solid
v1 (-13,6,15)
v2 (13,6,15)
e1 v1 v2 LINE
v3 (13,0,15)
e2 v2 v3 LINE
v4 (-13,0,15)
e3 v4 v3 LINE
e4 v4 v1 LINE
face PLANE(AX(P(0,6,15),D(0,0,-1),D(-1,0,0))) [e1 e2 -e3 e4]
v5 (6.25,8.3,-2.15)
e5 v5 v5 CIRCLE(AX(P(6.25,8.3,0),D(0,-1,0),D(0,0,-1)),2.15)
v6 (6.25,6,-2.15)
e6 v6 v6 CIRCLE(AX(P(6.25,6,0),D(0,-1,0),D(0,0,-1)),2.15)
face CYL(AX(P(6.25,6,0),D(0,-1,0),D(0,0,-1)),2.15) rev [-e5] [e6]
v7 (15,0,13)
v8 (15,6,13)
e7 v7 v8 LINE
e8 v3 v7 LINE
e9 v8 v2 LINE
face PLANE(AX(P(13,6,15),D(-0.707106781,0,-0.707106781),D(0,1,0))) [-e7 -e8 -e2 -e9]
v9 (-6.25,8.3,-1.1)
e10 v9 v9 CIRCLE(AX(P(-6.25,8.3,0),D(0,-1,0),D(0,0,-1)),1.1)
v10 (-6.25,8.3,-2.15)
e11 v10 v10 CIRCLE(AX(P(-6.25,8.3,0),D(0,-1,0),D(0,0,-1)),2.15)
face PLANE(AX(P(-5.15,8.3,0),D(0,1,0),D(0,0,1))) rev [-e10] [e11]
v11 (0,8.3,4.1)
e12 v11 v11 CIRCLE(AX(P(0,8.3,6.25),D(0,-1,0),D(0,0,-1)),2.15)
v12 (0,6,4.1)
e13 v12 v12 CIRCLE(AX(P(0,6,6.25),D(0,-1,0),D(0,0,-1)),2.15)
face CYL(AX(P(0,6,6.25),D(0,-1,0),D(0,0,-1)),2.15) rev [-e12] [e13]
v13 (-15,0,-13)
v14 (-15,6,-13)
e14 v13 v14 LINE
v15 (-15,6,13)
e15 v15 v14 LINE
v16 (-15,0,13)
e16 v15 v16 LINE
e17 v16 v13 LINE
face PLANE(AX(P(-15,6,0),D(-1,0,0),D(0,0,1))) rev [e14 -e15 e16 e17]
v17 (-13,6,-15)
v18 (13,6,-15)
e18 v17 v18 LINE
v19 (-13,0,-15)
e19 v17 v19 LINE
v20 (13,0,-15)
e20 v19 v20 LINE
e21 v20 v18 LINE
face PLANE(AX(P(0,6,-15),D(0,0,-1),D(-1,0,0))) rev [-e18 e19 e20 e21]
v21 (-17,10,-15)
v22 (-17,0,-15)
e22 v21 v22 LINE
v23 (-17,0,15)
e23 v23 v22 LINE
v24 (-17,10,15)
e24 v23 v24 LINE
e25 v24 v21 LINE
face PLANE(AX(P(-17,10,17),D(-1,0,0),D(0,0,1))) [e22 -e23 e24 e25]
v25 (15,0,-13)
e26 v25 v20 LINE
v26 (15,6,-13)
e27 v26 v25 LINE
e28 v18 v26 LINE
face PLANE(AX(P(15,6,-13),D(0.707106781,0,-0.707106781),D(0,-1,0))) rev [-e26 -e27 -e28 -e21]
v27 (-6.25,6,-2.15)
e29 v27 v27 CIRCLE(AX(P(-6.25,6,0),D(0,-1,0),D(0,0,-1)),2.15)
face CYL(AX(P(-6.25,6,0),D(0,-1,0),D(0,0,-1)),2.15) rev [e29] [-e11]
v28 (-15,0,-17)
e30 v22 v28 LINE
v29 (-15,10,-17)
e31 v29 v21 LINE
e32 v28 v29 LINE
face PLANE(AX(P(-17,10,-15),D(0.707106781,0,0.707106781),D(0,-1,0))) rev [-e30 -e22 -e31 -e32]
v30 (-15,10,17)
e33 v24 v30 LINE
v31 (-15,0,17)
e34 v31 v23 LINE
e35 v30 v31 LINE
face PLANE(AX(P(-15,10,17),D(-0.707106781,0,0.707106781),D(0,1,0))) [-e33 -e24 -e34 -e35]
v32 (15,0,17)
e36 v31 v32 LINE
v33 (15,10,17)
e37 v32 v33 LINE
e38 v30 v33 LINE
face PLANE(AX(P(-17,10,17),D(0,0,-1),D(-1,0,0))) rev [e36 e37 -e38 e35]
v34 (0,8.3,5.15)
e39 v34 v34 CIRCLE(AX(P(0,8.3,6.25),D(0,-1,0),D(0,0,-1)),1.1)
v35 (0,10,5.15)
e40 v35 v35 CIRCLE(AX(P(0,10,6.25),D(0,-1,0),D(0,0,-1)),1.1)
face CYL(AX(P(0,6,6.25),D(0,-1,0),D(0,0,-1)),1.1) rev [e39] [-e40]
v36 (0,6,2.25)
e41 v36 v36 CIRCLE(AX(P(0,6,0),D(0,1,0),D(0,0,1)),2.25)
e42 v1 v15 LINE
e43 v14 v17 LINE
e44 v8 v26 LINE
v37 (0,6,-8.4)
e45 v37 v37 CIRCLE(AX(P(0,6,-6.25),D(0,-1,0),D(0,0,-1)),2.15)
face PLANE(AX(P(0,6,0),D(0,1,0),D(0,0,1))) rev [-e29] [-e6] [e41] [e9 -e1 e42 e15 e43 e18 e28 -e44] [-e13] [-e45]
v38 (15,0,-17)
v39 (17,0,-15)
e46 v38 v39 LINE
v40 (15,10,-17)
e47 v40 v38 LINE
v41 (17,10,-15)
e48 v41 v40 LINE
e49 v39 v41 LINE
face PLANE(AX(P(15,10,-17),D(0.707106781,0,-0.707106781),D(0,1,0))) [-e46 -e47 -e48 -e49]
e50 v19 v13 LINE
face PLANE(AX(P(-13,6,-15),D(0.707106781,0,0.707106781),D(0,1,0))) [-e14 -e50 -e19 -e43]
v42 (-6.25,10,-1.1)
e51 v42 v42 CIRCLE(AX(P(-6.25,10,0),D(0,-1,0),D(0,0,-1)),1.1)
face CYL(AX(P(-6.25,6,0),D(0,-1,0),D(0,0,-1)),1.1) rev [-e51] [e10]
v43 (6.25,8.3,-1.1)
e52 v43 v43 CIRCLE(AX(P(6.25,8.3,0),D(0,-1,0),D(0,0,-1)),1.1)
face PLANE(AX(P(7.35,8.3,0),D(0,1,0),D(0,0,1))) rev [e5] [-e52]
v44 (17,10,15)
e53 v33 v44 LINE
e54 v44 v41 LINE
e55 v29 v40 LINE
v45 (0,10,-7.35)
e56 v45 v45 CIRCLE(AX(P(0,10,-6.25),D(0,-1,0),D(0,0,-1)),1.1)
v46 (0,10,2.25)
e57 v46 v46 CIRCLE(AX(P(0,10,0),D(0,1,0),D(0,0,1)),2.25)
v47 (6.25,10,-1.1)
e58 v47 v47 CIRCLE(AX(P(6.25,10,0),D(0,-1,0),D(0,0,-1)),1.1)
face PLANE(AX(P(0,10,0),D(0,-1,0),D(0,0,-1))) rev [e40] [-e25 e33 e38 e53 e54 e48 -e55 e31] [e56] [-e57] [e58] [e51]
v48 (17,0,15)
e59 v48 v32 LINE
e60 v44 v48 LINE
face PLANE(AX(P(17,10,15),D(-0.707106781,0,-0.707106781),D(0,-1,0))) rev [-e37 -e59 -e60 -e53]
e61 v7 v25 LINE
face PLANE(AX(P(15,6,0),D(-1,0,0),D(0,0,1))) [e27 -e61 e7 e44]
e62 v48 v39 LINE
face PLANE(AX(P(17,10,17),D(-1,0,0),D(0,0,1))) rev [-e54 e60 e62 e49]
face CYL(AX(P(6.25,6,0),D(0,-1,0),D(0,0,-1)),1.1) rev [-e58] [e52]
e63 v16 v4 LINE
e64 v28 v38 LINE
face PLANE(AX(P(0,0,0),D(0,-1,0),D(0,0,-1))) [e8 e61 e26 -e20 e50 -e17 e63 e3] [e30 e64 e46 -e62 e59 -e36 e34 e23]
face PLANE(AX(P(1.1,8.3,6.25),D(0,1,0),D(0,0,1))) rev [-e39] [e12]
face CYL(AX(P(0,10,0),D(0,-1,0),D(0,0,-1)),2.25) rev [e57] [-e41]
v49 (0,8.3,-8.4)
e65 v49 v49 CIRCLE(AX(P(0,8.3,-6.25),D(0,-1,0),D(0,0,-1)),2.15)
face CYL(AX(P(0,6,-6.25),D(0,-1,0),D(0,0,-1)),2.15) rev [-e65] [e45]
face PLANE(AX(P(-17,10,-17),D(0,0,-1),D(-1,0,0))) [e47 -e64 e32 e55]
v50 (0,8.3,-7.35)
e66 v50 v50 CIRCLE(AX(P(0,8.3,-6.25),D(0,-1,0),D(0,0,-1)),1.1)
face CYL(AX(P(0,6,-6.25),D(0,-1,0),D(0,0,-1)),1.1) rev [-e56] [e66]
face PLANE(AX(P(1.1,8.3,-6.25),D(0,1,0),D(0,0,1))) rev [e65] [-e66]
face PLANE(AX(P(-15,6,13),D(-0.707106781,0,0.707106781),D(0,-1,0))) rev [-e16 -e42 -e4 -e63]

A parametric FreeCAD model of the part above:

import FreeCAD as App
import Part
import Sketcher


def edges_at(feature, points):
    """Names of the edges that pass closest to the given points."""
    edges = feature.Shape.Edges
    near = lambda p: min(range(len(edges)), key=lambda i: edges[i].distToShape(Part.Vertex(*p))[0])
    return sorted({f"Edge{near(p) + 1}" for p in points})


def add_polygon(sketch, points):
    """Adds a closed chain of lines whose ends are joined by coincident constraints."""
    first, n = sketch.GeometryCount, len(points)
    for a, b in zip(points, points[1:] + points[:1]):
        sketch.addGeometry(Part.LineSegment(App.Vector(*a, 0), App.Vector(*b, 0)), False)
    for i in range(n):
        sketch.addConstraint(Sketcher.Constraint("Coincident", first + i, 2, first + (i + 1) % n, 1))

doc = App.newDocument("Part")
body = doc.addObject("PartDesign::Body", "Body")

# Sketch on XZ plane
sketch1 = doc.addObject("Sketcher::SketchObject", "Sketch")
body.addObject(sketch1)
sketch1.AttachmentSupport = (doc.XZ_Plane, [""])
sketch1.MapMode = "FlatFace"
add_polygon(sketch1, [(-17, -17), (-17, 17), (17, 17), (17, -17)])  # lines 0-3
sketch1.addGeometry(Part.Circle(App.Vector(0, 0, 0), App.Vector(0, 0, 1), 2.2), False)  # 4
sketch1.addConstraint(Sketcher.Constraint("Vertical", 0))
sketch1.addConstraint(Sketcher.Constraint("Horizontal", 1))
sketch1.addConstraint(Sketcher.Constraint("Vertical", 2))
sketch1.addConstraint(Sketcher.Constraint("Horizontal", 3))
sketch1.addConstraint(Sketcher.Constraint("Coincident", 4, 3, -1, 1))
sketch1.addConstraint(Sketcher.Constraint("Symmetric", 0, 2, 2, 2, -1, 1))
sketch1.addConstraint(Sketcher.Constraint("Equal", 3, 0))
sketch1.addConstraint(Sketcher.Constraint("Diameter", 4, 4.5))
sketch1.addConstraint(Sketcher.Constraint("DistanceX", 1, 1, 1, 2, 34.0))
pad1 = doc.addObject("PartDesign::Pad", "Pad")
body.addObject(pad1)
pad1.Profile = sketch1
pad1.Length = 10
pad1.Reversed = True

# Sketch on XZ plane
sketch2 = doc.addObject("Sketcher::SketchObject", "Sketch001")
body.addObject(sketch2)
sketch2.AttachmentSupport = (doc.XZ_Plane, [""])
sketch2.MapMode = "FlatFace"
add_polygon(sketch2, [(-15, -15), (-15, 15), (15, 15), (15, -15)])  # lines 0-3
sketch2.addConstraint(Sketcher.Constraint("Vertical", 0))
sketch2.addConstraint(Sketcher.Constraint("Horizontal", 1))
sketch2.addConstraint(Sketcher.Constraint("Vertical", 2))
sketch2.addConstraint(Sketcher.Constraint("Horizontal", 3))
sketch2.addConstraint(Sketcher.Constraint("Symmetric", 0, 2, 2, 2, -1, 1))
sketch2.addConstraint(Sketcher.Constraint("Equal", 3, 0))
sketch2.addConstraint(Sketcher.Constraint("DistanceX", 1, 1, 1, 2, 30.0))
pocket1 = doc.addObject("PartDesign::Pocket", "Pocket")
body.addObject(pocket1)
pocket1.Profile = sketch2
pocket1.Length = 6
doc.recompute()

chamfer = doc.addObject("PartDesign::Chamfer", "Chamfer")
body.addObject(chamfer)
chamfer.Base = (pocket1, edges_at(pocket1, [
    (-15, 3, 15),
    (15, 3, 15),
    (15, 3, -15),
    (-15, 3, -15),
    (-17, 5, 17),
    (17, 5, 17),
    (17, 5, -17),
    (-17, 5, -17),
]))
chamfer.Size = 2

# Sketch on XZ plane
sketch3 = doc.addObject("Sketcher::SketchObject", "Sketch002")
body.addObject(sketch3)
sketch3.AttachmentSupport = (doc.XZ_Plane, [""])
sketch3.MapMode = "FlatFace"
sketch3.AttachmentOffset = App.Placement(App.Vector(0, 0, -6), App.Rotation())
sketch3.addGeometry(Part.Circle(App.Vector(0, -6.2, 0), App.Vector(0, 0, 1), 1.1), False)
sketch3.addGeometry(Part.Circle(App.Vector(-6.2, 0, 0), App.Vector(0, 0, 1), 1.1), False)
sketch3.addGeometry(Part.Circle(App.Vector(0, 6.2, 0), App.Vector(0, 0, 1), 1.1), False)
sketch3.addGeometry(Part.Circle(App.Vector(6.2, 0, 0), App.Vector(0, 0, 1), 1.1), False)
sketch3.addConstraint(Sketcher.Constraint("Equal", 0, 1))
sketch3.addConstraint(Sketcher.Constraint("Equal", 1, 2))
sketch3.addConstraint(Sketcher.Constraint("Equal", 2, 3))
sketch3.addConstraint(Sketcher.Constraint("Symmetric", 0, 3, 2, 3, -1, 1))
sketch3.addConstraint(Sketcher.Constraint("Symmetric", 1, 3, 3, 3, -1, 1))
sketch3.addConstraint(Sketcher.Constraint("PointOnObject", 0, 3, -2))
sketch3.addConstraint(Sketcher.Constraint("PointOnObject", 1, 3, -1))
sketch3.addConstraint(Sketcher.Constraint("Diameter", 0, 2.2))
sketch3.addConstraint(Sketcher.Constraint("DistanceY", 0, 3, 2, 3, 12.5))
sketch3.addConstraint(Sketcher.Constraint("DistanceX", 1, 3, 3, 3, 12.5))
doc.recompute()
hole = doc.addObject("PartDesign::Hole", "Hole")
body.addObject(hole)
hole.Profile = sketch3
hole.ThreadType = "None"
hole.Diameter = 2.2
hole.DepthType = "ThroughAll"
hole.HoleCutType = "Counterbore"
hole.HoleCutDiameter = 4.3
hole.HoleCutDepth = 2.3

doc.recompute()
